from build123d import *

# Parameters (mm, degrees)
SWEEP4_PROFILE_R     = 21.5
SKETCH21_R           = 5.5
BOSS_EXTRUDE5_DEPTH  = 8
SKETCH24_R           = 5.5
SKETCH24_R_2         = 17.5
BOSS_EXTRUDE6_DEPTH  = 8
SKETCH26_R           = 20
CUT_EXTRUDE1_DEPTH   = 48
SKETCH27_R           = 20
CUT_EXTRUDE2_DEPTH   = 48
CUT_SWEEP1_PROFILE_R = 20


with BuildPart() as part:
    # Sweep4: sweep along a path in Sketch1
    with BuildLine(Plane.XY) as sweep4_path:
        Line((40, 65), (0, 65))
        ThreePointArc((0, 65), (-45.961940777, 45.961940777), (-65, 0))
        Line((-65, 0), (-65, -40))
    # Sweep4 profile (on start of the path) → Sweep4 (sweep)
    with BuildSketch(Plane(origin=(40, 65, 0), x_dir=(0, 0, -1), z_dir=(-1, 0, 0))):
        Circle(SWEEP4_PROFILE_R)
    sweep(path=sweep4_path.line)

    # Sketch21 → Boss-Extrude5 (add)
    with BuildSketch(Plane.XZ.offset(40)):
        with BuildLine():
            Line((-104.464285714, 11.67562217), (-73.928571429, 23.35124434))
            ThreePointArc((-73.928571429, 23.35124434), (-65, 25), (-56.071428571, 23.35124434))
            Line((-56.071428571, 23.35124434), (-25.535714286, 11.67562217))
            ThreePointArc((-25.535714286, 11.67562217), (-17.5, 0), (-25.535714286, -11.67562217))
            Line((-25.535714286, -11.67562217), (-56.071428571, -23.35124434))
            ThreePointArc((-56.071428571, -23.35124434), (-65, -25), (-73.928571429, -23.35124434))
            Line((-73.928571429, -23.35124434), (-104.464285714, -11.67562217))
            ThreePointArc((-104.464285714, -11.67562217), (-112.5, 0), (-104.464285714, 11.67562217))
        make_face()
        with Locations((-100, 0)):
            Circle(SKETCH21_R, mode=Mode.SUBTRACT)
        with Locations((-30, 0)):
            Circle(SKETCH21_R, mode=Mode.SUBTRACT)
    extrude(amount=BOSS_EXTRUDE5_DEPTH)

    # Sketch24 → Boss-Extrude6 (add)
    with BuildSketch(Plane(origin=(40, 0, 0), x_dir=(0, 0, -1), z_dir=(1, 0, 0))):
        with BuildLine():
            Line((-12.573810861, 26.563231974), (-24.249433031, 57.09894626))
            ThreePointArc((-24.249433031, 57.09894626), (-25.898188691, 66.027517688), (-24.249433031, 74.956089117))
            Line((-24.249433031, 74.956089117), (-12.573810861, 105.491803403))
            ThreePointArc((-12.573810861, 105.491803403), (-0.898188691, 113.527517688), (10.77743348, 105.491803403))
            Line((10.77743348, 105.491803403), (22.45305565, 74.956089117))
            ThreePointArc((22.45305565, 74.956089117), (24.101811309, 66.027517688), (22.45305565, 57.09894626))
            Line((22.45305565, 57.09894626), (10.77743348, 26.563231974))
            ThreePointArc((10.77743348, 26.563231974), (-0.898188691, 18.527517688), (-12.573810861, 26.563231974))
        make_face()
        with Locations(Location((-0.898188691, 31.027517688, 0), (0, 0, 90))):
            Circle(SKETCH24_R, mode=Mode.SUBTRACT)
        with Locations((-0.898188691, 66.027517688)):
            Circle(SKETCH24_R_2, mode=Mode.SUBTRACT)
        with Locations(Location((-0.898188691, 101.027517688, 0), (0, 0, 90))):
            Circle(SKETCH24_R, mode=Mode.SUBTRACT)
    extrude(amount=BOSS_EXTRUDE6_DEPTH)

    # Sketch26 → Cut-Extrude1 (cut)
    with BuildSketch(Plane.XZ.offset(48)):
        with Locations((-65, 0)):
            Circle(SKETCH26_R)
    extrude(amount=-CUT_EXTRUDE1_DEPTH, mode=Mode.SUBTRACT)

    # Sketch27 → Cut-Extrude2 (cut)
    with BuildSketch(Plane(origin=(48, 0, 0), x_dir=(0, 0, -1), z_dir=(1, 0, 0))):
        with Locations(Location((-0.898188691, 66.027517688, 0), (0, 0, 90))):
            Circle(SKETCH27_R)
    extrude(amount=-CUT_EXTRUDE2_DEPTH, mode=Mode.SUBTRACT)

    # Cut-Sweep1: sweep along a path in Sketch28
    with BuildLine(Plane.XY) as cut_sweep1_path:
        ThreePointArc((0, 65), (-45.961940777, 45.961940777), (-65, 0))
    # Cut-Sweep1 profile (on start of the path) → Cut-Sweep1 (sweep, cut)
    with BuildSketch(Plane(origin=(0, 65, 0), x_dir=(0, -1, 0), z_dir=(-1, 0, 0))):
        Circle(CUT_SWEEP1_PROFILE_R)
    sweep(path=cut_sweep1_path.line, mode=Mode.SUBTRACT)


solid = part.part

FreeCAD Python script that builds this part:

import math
import FreeCAD as App
import Part
import Sketcher
from FreeCAD import Vector
Q = App.Units.Quantity

doc = App.newDocument("Part")
body = doc.addObject("PartDesign::Body", "Body")

sketch1 = body.newObject("Sketcher::SketchObject", "Sketch")
sketch1.AttachmentSupport = (doc.getObject("YZ_Plane"), [""])
sketch1.MapMode = "FlatFace"
sketch1.AttachmentOffset = App.Placement(Vector(0, 0, 40), App.Rotation())
sketch1.addGeometry(Part.Circle(Vector(65, 0, 0), Vector(0, 0, 1), 22), False)
sketch1.addConstraint([
    Sketcher.Constraint("PointOnObject", 0, 3, -1),
    Sketcher.Constraint("Diameter", 0, Q("43 mm")),
    Sketcher.Constraint("DistanceX", -1, 1, 0, 3, Q("65 mm")),
])

sketch2 = body.newObject("Sketcher::SketchObject", "Sketch001")
sketch2.AttachmentSupport = (doc.getObject("XY_Plane"), [""])
sketch2.MapMode = "FlatFace"
sketch2.addGeometry([
    Part.LineSegment(Vector(40, 65, 0), Vector(0, 65, 0)),
    Part.ArcOfCircle(Part.Circle(Vector(0, 0, 0), Vector(0, 0, 1), 65), math.radians(90), math.radians(180)),
    Part.LineSegment(Vector(-65, 0, 0), Vector(-65, -40, 0)),
], False)
sketch2.addConstraint([
    Sketcher.Constraint("Tangent", 0, 2, 1, 1),
    Sketcher.Constraint("Tangent", 1, 2, 2, 1),
    Sketcher.Constraint("Horizontal", 0),
    Sketcher.Constraint("Vertical", 2),
    Sketcher.Constraint("Coincident", 1, 3, -1, 1),
    Sketcher.Constraint("Equal", 0, 2),
    Sketcher.Constraint("Radius", 1, Q("65 mm")),
    Sketcher.Constraint("DistanceX", 0, 2, 0, 1, Q("40 mm")),
])
doc.recompute()

additivepipe = body.newObject("PartDesign::AdditivePipe", "AdditivePipe")
additivepipe.Profile = sketch1
additivepipe.Spine = (sketch2, ["Edge1", "Edge2", "Edge3"])

sketch3 = body.newObject("Sketcher::SketchObject", "Sketch002")
sketch3.AttachmentSupport = (doc.getObject("XZ_Plane"), [""])
sketch3.MapMode = "FlatFace"
sketch3.AttachmentOffset = App.Placement(Vector(0, 0, 40), App.Rotation())
sketch3.addGeometry([
    Part.LineSegment(Vector(-74, 23, 0), Vector(-104, 12, 0)),
    Part.ArcOfCircle(Part.Circle(Vector(-100, 0, 0), Vector(0, 0, 1), 12), math.radians(111), math.radians(249)),
    Part.LineSegment(Vector(-104, -12, 0), Vector(-74, -23, 0)),
    Part.ArcOfCircle(Part.Circle(Vector(-65, 0, 0), Vector(0, 0, 1), 25), math.radians(-111), math.radians(-69)),
    Part.LineSegment(Vector(-56, -23, 0), Vector(-26, -12, 0)),
    Part.ArcOfCircle(Part.Circle(Vector(-30, 0, 0), Vector(0, 0, 1), 12), math.radians(-69), math.radians(69)),
    Part.LineSegment(Vector(-26, 12, 0), Vector(-56, 23, 0)),
    Part.ArcOfCircle(Part.Circle(Vector(-65, 0, 0), Vector(0, 0, 1), 25), math.radians(69), math.radians(111)),
    Part.Circle(Vector(-30, 0, 0), Vector(0, 0, 1), 6),
    Part.Circle(Vector(-100, 0, 0), Vector(0, 0, 1), 6),
], False)
sketch3.addConstraint([
    Sketcher.Constraint("Tangent", 0, 2, 1, 1),
    Sketcher.Constraint("Tangent", 1, 2, 2, 1),
    Sketcher.Constraint("Tangent", 2, 2, 3, 1),
    Sketcher.Constraint("Tangent", 3, 2, 4, 1),
    Sketcher.Constraint("Tangent", 4, 2, 5, 1),
    Sketcher.Constraint("Tangent", 5, 2, 6, 1),
    Sketcher.Constraint("Tangent", 6, 2, 7, 1),
    Sketcher.Constraint("Tangent", 7, 2, 0, 1),
    Sketcher.Constraint("Coincident", 7, 3, 3, 3),
    Sketcher.Constraint("Coincident", 8, 3, 5, 3),
    Sketcher.Constraint("Coincident", 9, 3, 1, 3),
    Sketcher.Constraint("Equal", 1, 5),
    Sketcher.Constraint("Equal", 3, 7),
    Sketcher.Constraint("Equal", 8, 9),
    Sketcher.Constraint("Symmetric", 0, 2, 1, 2, -1),
    Sketcher.Constraint("PointOnObject", 5, 3, -1),
    Sketcher.Constraint("Parallel", 0, 4),
    Sketcher.Constraint("Diameter", 8, Q("11 mm")),
    Sketcher.Constraint("Radius", 3, Q("25 mm")),
    Sketcher.Constraint("Radius", 1, Q("12.5 mm")),
    Sketcher.Constraint("DistanceX", 1, 3, -1, 1, Q("100 mm")),
    Sketcher.Constraint("DistanceX", 3, 3, -1, 1, Q("65 mm")),
])
pad1 = body.newObject("PartDesign::Pad", "Pad")
pad1.Profile = sketch3
pad1.Length = 8

sketch4 = body.newObject("Sketcher::SketchObject", "Sketch003")
sketch4.AttachmentSupport = (doc.getObject("YZ_Plane"), [""])
sketch4.MapMode = "FlatFace"
sketch4.AttachmentOffset = App.Placement(Vector(0, 0, 40), App.Rotation())
sketch4.addGeometry([
    Part.LineSegment(Vector(57, 24, 0), Vector(27, 13, 0)),
    Part.ArcOfCircle(Part.Circle(Vector(31, 1, 0), Vector(0, 0, 1), 12), math.radians(111), math.radians(249)),
    Part.LineSegment(Vector(27, -11, 0), Vector(57, -22, 0)),
    Part.ArcOfCircle(Part.Circle(Vector(66, 1, 0), Vector(0, 0, 1), 25), math.radians(-111), math.radians(-69)),
    Part.LineSegment(Vector(75, -22, 0), Vector(105, -11, 0)),
    Part.ArcOfCircle(Part.Circle(Vector(101, 1, 0), Vector(0, 0, 1), 13), math.radians(-69), math.radians(69)),
    Part.LineSegment(Vector(105, 13, 0), Vector(75, 24, 0)),
    Part.ArcOfCircle(Part.Circle(Vector(66, 1, 0), Vector(0, 0, 1), 25), math.radians(69), math.radians(111)),
    Part.Circle(Vector(31, 1, 0), Vector(0, 0, 1), 6),
    Part.Circle(Vector(66, 1, 0), Vector(0, 0, 1), 18),
    Part.Circle(Vector(101, 1, 0), Vector(0, 0, 1), 6),
], False)
sketch4.addConstraint([
    Sketcher.Constraint("Tangent", 0, 2, 1, 1),
    Sketcher.Constraint("Tangent", 1, 2, 2, 1),
    Sketcher.Constraint("Tangent", 2, 2, 3, 1),
    Sketcher.Constraint("Tangent", 3, 2, 4, 1),
    Sketcher.Constraint("Tangent", 4, 2, 5, 1),
    Sketcher.Constraint("Tangent", 5, 2, 6, 1),
    Sketcher.Constraint("Tangent", 6, 2, 7, 1),
    Sketcher.Constraint("Tangent", 7, 2, 0, 1),
    Sketcher.Constraint("Coincident", 7, 3, 3, 3),
    Sketcher.Constraint("Coincident", 8, 3, 1, 3),
    Sketcher.Constraint("Coincident", 9, 3, 3, 3),
    Sketcher.Constraint("Coincident", 10, 3, 5, 3),
    Sketcher.Constraint("Equal", 1, 5),
    Sketcher.Constraint("Equal", 3, 7),
    Sketcher.Constraint("Equal", 8, 10),
    Sketcher.Constraint("Parallel", 0, 4),
    Sketcher.Constraint("Parallel", 2, 6),
    Sketcher.Constraint("Horizontal", 1, 3, 3, 3),
    Sketcher.Constraint("Diameter", 8, Q("11 mm")),
    Sketcher.Constraint("Diameter", 9, Q("35 mm")),
    Sketcher.Constraint("Radius", 3, Q("25 mm")),
    Sketcher.Constraint("Radius", 1, Q("12.5 mm")),
    Sketcher.Constraint("DistanceX", 1, 3, 3, 3, Q("35 mm")),
    Sketcher.Constraint("DistanceY", -1, 1, 1, 3, Q("0.898189 mm")),
    Sketcher.Constraint("DistanceX", -1, 1, 0, 2, Q("26.563232 mm")),
])
pad2 = body.newObject("PartDesign::Pad", "Pad001")
pad2.Profile = sketch4
pad2.Length = 8

sketch5 = body.newObject("Sketcher::SketchObject", "Sketch004")
sketch5.AttachmentSupport = (doc.getObject("XZ_Plane"), [""])
sketch5.MapMode = "FlatFace"
sketch5.AttachmentOffset = App.Placement(Vector(0, 0, 48), App.Rotation())
sketch5.addGeometry(Part.Circle(Vector(-65, 0, 0), Vector(0, 0, 1), 20), False)
sketch5.addConstraint([
    Sketcher.Constraint("PointOnObject", 0, 3, -1),
    Sketcher.Constraint("Diameter", 0, Q("40 mm")),
    Sketcher.Constraint("DistanceX", 0, 3, -1, 1, Q("65 mm")),
])
pocket1 = body.newObject("PartDesign::Pocket", "Pocket")
pocket1.Profile = sketch5
pocket1.Length = 48

sketch6 = body.newObject("Sketcher::SketchObject", "Sketch005")
sketch6.AttachmentSupport = (doc.getObject("YZ_Plane"), [""])
sketch6.MapMode = "FlatFace"
sketch6.AttachmentOffset = App.Placement(Vector(0, 0, 48), App.Rotation())
sketch6.addGeometry(Part.Circle(Vector(66, 1, 0), Vector(0, 0, 1), 20), False)
sketch6.addConstraint([
    Sketcher.Constraint("Diameter", 0, Q("40 mm")),
    Sketcher.Constraint("DistanceY", -1, 1, 0, 3, Q("0.898189 mm")),
    Sketcher.Constraint("DistanceX", -1, 1, 0, 3, Q("66.027518 mm")),
])
pocket2 = body.newObject("PartDesign::Pocket", "Pocket001")
pocket2.Profile = sketch6
pocket2.Length = 48

sketch7 = body.newObject("Sketcher::SketchObject", "Sketch006")
sketch7.AttachmentSupport = (doc.getObject("YZ_Plane"), [""])
sketch7.MapMode = "FlatFace"
sketch7.addGeometry(Part.Circle(Vector(65, 0, 0), Vector(0, 0, 1), 20), False)
sketch7.addConstraint([
    Sketcher.Constraint("PointOnObject", 0, 3, -1),
    Sketcher.Constraint("Diameter", 0, Q("40 mm")),
    Sketcher.Constraint("DistanceX", -1, 1, 0, 3, Q("65 mm")),
])

sketch8 = body.newObject("Sketcher::SketchObject", "Sketch007")
sketch8.AttachmentSupport = (doc.getObject("XY_Plane"), [""])
sketch8.MapMode = "FlatFace"
sketch8.addGeometry(Part.ArcOfCircle(Part.Circle(Vector(0, 0, 0), Vector(0, 0, 1), 65), math.radians(90), math.radians(180)), False)
sketch8.addConstraint([
    Sketcher.Constraint("Coincident", 0, 3, -1, 1),
    Sketcher.Constraint("PointOnObject", 0, 1, -2),
    Sketcher.Constraint("PointOnObject", 0, 2, -1),
    Sketcher.Constraint("Radius", 0, Q("65 mm")),
])
doc.recompute()

subtractivepipe = body.newObject("PartDesign::SubtractivePipe", "SubtractivePipe")
subtractivepipe.Profile = sketch7
subtractivepipe.Spine = (sketch8, ["Edge1"])

doc.recompute()
